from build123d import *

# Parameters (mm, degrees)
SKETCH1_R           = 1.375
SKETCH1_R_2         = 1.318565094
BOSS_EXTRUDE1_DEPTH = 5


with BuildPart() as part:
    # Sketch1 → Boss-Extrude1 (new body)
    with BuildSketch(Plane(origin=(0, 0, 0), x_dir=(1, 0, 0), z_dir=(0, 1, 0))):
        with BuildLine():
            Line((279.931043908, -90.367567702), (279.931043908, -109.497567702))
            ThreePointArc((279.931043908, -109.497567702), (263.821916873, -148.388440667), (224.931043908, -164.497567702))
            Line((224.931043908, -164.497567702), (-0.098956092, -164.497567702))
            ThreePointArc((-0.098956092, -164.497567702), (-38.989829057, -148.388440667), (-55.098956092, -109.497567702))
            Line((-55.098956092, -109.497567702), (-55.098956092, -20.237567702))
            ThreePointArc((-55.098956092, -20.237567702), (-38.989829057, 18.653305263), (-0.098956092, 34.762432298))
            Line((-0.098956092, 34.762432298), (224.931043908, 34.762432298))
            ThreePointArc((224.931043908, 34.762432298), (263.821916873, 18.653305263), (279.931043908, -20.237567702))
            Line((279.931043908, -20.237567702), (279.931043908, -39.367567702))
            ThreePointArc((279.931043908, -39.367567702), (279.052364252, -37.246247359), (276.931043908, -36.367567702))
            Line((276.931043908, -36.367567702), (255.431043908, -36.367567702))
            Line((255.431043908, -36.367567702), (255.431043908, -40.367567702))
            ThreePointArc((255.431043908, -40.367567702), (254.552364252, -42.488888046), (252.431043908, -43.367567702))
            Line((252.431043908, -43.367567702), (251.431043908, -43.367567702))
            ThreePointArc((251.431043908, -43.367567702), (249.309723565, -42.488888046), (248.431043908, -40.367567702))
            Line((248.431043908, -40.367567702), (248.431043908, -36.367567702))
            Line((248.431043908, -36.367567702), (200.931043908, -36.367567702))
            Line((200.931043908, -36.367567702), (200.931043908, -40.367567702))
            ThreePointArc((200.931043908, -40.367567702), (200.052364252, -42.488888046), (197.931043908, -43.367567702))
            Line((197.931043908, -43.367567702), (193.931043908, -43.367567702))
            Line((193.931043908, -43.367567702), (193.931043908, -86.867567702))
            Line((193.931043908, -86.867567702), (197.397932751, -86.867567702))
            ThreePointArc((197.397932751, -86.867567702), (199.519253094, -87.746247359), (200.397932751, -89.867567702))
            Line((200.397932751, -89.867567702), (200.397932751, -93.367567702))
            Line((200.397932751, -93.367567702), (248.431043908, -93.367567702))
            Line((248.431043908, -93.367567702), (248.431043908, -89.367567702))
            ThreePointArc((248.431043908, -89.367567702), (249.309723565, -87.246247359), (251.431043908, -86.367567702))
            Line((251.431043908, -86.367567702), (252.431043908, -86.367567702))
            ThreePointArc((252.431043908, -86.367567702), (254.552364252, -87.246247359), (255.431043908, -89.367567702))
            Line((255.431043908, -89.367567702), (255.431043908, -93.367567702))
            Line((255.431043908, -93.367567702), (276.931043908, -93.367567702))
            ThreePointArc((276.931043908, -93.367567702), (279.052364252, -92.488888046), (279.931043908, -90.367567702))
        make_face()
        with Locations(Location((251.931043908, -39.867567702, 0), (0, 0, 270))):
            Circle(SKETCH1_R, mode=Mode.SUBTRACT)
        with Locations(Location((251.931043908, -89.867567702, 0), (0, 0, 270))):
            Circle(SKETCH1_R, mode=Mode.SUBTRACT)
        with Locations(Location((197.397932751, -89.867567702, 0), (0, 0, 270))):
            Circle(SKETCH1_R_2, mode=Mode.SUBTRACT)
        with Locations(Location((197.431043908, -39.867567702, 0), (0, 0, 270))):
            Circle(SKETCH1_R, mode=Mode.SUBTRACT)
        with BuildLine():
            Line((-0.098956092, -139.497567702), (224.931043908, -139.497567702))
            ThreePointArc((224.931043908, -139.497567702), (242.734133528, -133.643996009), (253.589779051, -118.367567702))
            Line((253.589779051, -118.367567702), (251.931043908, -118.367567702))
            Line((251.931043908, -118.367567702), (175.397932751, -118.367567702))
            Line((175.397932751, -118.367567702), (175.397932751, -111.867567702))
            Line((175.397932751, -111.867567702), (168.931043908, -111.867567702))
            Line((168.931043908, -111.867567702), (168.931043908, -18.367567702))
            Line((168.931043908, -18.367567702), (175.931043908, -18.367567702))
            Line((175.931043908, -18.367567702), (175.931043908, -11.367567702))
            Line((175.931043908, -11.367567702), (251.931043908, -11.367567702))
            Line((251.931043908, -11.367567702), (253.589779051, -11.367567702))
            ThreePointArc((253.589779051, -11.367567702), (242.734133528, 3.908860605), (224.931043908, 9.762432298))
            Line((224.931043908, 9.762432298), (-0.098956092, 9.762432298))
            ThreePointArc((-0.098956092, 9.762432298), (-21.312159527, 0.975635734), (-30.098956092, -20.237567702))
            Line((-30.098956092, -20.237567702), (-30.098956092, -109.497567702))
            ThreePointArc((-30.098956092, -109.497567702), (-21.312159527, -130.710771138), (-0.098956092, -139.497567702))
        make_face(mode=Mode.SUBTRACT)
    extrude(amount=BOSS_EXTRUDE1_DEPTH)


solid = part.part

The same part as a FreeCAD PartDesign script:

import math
import FreeCAD as App
import Part
import Sketcher
from FreeCAD import Vector

doc = App.newDocument("Part")
body = doc.addObject("PartDesign::Body", "Body")

# Sketch on XZ plane
sketch1 = body.newObject("Sketcher::SketchObject", "Sketch")
sketch1.AttachmentSupport = (doc.getObject("XZ_Plane"), [""])
sketch1.MapMode = "FlatFace"
sketch1.addGeometry([
    Part.LineSegment(Vector(279.9, 109.5, 0), Vector(279.9, 90.4, 0)),  # 0
    Part.ArcOfCircle(Part.Circle(Vector(276.9, 90.4, 0), Vector(0, 0, 1), 3), math.radians(0), math.radians(90)),  # 1
    Part.LineSegment(Vector(276.9, 93.4, 0), Vector(255.4, 93.4, 0)),  # 2
    Part.LineSegment(Vector(255.4, 93.4, 0), Vector(255.4, 89.4, 0)),  # 3
    Part.ArcOfCircle(Part.Circle(Vector(252.4, 89.4, 0), Vector(0, 0, 1), 3), math.radians(-90), math.radians(0)),  # 4
    Part.LineSegment(Vector(252.4, 86.4, 0), Vector(251.4, 86.4, 0)),  # 5
    Part.ArcOfCircle(Part.Circle(Vector(251.4, 89.4, 0), Vector(0, 0, 1), 3), math.radians(-180), math.radians(-90)),  # 6
    Part.LineSegment(Vector(248.4, 89.4, 0), Vector(248.4, 93.4, 0)),  # 7
    Part.LineSegment(Vector(248.4, 93.4, 0), Vector(200.4, 93.4, 0)),  # 8
    Part.LineSegment(Vector(200.4, 93.4, 0), Vector(200.4, 89.9, 0)),  # 9
    Part.ArcOfCircle(Part.Circle(Vector(197.4, 89.9, 0), Vector(0, 0, 1), 3), math.radians(-90), math.radians(0)),  # 10
    Part.LineSegment(Vector(197.4, 86.9, 0), Vector(193.9, 86.9, 0)),  # 11
    Part.LineSegment(Vector(193.9, 86.9, 0), Vector(193.9, 43.4, 0)),  # 12
    Part.LineSegment(Vector(193.9, 43.4, 0), Vector(197.9, 43.4, 0)),  # 13
    Part.ArcOfCircle(Part.Circle(Vector(197.9, 40.4, 0), Vector(0, 0, 1), 3), math.radians(0), math.radians(90)),  # 14
    Part.LineSegment(Vector(200.9, 40.4, 0), Vector(200.9, 36.4, 0)),  # 15
    Part.LineSegment(Vector(200.9, 36.4, 0), Vector(248.4, 36.4, 0)),  # 16
    Part.LineSegment(Vector(248.4, 36.4, 0), Vector(248.4, 40.4, 0)),  # 17
    Part.ArcOfCircle(Part.Circle(Vector(251.4, 40.4, 0), Vector(0, 0, 1), 3), math.radians(90), math.radians(180)),  # 18
    Part.LineSegment(Vector(251.4, 43.4, 0), Vector(252.4, 43.4, 0)),  # 19
    Part.ArcOfCircle(Part.Circle(Vector(252.4, 40.4, 0), Vector(0, 0, 1), 3), math.radians(0), math.radians(90)),  # 20
    Part.LineSegment(Vector(255.4, 40.4, 0), Vector(255.4, 36.4, 0)),  # 21
    Part.LineSegment(Vector(255.4, 36.4, 0), Vector(276.9, 36.4, 0)),  # 22
    Part.ArcOfCircle(Part.Circle(Vector(276.9, 39.4, 0), Vector(0, 0, 1), 3), math.radians(-90), math.radians(0)),  # 23
    Part.LineSegment(Vector(279.9, 39.4, 0), Vector(279.9, 20.2, 0)),  # 24
    Part.ArcOfCircle(Part.Circle(Vector(224.9, 20.2, 0), Vector(0, 0, 1), 55), math.radians(-90), math.radians(0)),  # 25
    Part.LineSegment(Vector(224.9, -34.8, 0), Vector(-0.1, -34.8, 0)),  # 26
    Part.ArcOfCircle(Part.Circle(Vector(-0.1, 20.2, 0), Vector(0, 0, 1), 55), math.radians(-180), math.radians(-90)),  # 27
    Part.LineSegment(Vector(-55.1, 20.2, 0), Vector(-55.1, 109.5, 0)),  # 28
    Part.ArcOfCircle(Part.Circle(Vector(-0.1, 109.5, 0), Vector(0, 0, 1), 55), math.radians(90), math.radians(180)),  # 29
    Part.LineSegment(Vector(-0.1, 164.5, 0), Vector(224.9, 164.5, 0)),  # 30
    Part.ArcOfCircle(Part.Circle(Vector(224.9, 109.5, 0), Vector(0, 0, 1), 55), math.radians(0), math.radians(90)),  # 31
    Part.Circle(Vector(251.9, 89.9, 0), Vector(0, 0, 1), 1.4),  # 32
    Part.Circle(Vector(197.4, 89.9, 0), Vector(0, 0, 1), 1.3),  # 33
    Part.Circle(Vector(251.9, 39.9, 0), Vector(0, 0, 1), 1.4),  # 34
    Part.Circle(Vector(197.4, 39.9, 0), Vector(0, 0, 1), 1.4),  # 35
    Part.ArcOfCircle(Part.Circle(Vector(-0.1, 109.5, 0), Vector(0, 0, 1), 30), math.radians(90), math.radians(180)),  # 36
    Part.LineSegment(Vector(-30.1, 109.5, 0), Vector(-30.1, 20.2, 0)),  # 37
    Part.ArcOfCircle(Part.Circle(Vector(-0.1, 20.2, 0), Vector(0, 0, 1), 30), math.radians(180), math.radians(270)),  # 38
    Part.LineSegment(Vector(-0.1, -9.8, 0), Vector(224.9, -9.8, 0)),  # 39
    Part.ArcOfCircle(Part.Circle(Vector(224.9, 20.2, 0), Vector(0, 0, 1), 30), math.radians(-90), math.radians(-17)),  # 40
    Part.LineSegment(Vector(253.6, 11.4, 0), Vector(175.9, 11.4, 0)),  # 41
    Part.LineSegment(Vector(175.9, 11.4, 0), Vector(175.9, 18.4, 0)),  # 42
    Part.LineSegment(Vector(175.9, 18.4, 0), Vector(168.9, 18.4, 0)),  # 43
    Part.LineSegment(Vector(168.9, 18.4, 0), Vector(168.9, 111.9, 0)),  # 44
    Part.LineSegment(Vector(168.9, 111.9, 0), Vector(175.4, 111.9, 0)),  # 45
    Part.LineSegment(Vector(175.4, 111.9, 0), Vector(175.4, 118.4, 0)),  # 46
    Part.LineSegment(Vector(175.4, 118.4, 0), Vector(253.6, 118.4, 0)),  # 47
    Part.ArcOfCircle(Part.Circle(Vector(224.9, 109.5, 0), Vector(0, 0, 1), 30), math.radians(17), math.radians(90)),  # 48
    Part.LineSegment(Vector(224.9, 139.5, 0), Vector(-0.1, 139.5, 0)),  # 49
], False)
sketch1.addConstraint([
    Sketcher.Constraint("Tangent", 0, 2, 1, 1),
    Sketcher.Constraint("Tangent", 1, 2, 2, 1),
    Sketcher.Constraint("Coincident", 2, 2, 3, 1),
    Sketcher.Constraint("Tangent", 3, 2, 4, 2),
    Sketcher.Constraint("Tangent", 4, 1, 5, 1),
    Sketcher.Constraint("Tangent", 5, 2, 6, 2),
    Sketcher.Constraint("Tangent", 6, 1, 7, 1),
    Sketcher.Constraint("Coincident", 7, 2, 8, 1),
    Sketcher.Constraint("Coincident", 8, 2, 9, 1),
    Sketcher.Constraint("Tangent", 9, 2, 10, 2),
    Sketcher.Constraint("Tangent", 10, 1, 11, 1),
    Sketcher.Constraint("Coincident", 11, 2, 12, 1),
    Sketcher.Constraint("Coincident", 12, 2, 13, 1),
    Sketcher.Constraint("Tangent", 13, 2, 14, 2),
    Sketcher.Constraint("Tangent", 14, 1, 15, 1),
    Sketcher.Constraint("Coincident", 15, 2, 16, 1),
    Sketcher.Constraint("Coincident", 16, 2, 17, 1),
    Sketcher.Constraint("Tangent", 17, 2, 18, 2),
    Sketcher.Constraint("Tangent", 18, 1, 19, 1),
    Sketcher.Constraint("Tangent", 19, 2, 20, 2),
    Sketcher.Constraint("Tangent", 20, 1, 21, 1),
    Sketcher.Constraint("Coincident", 21, 2, 22, 1),
    Sketcher.Constraint("Tangent", 22, 2, 23, 1),
    Sketcher.Constraint("Tangent", 23, 2, 24, 1),
    Sketcher.Constraint("Tangent", 24, 2, 25, 2),
    Sketcher.Constraint("Tangent", 25, 1, 26, 1),
    Sketcher.Constraint("Tangent", 26, 2, 27, 2),
    Sketcher.Constraint("Tangent", 27, 1, 28, 1),
    Sketcher.Constraint("Tangent", 28, 2, 29, 2),
    Sketcher.Constraint("Tangent", 29, 1, 30, 1),
    Sketcher.Constraint("Tangent", 30, 2, 31, 2),
    Sketcher.Constraint("Tangent", 31, 1, 0, 1),
    Sketcher.Constraint("Tangent", 36, 2, 37, 1),
    Sketcher.Constraint("Tangent", 37, 2, 38, 1),
    Sketcher.Constraint("Tangent", 38, 2, 39, 1),
    Sketcher.Constraint("Tangent", 39, 2, 40, 1),
    Sketcher.Constraint("Coincident", 40, 2, 41, 1),
    Sketcher.Constraint("Coincident", 41, 2, 42, 1),
    Sketcher.Constraint("Coincident", 42, 2, 43, 1),
    Sketcher.Constraint("Coincident", 43, 2, 44, 1),
    Sketcher.Constraint("Coincident", 44, 2, 45, 1),
    Sketcher.Constraint("Coincident", 45, 2, 46, 1),
    Sketcher.Constraint("Coincident", 46, 2, 47, 1),
    Sketcher.Constraint("Coincident", 47, 2, 48, 1),
    Sketcher.Constraint("Tangent", 48, 2, 49, 1),
    Sketcher.Constraint("Tangent", 49, 2, 36, 1),
    Sketcher.Constraint("Vertical", 0),
    Sketcher.Constraint("Horizontal", 2),
    Sketcher.Constraint("Vertical", 3),
    Sketcher.Constraint("Horizontal", 5),
    Sketcher.Constraint("Vertical", 7),
    Sketcher.Constraint("Horizontal", 8),
    Sketcher.Constraint("Vertical", 9),
    Sketcher.Constraint("Horizontal", 11),
    Sketcher.Constraint("Vertical", 12),
    Sketcher.Constraint("Horizontal", 13),
    Sketcher.Constraint("Vertical", 15),
    Sketcher.Constraint("Horizontal", 16),
    Sketcher.Constraint("Vertical", 17),
    Sketcher.Constraint("Horizontal", 19),
    Sketcher.Constraint("Vertical", 21),
    Sketcher.Constraint("Horizontal", 22),
    Sketcher.Constraint("Vertical", 24),
    Sketcher.Constraint("Horizontal", 26),
    Sketcher.Constraint("Vertical", 28),
    Sketcher.Constraint("Horizontal", 30),
    Sketcher.Constraint("Vertical", 37),
    Sketcher.Constraint("Horizontal", 39),
    Sketcher.Constraint("Horizontal", 41),
    Sketcher.Constraint("Vertical", 42),
    Sketcher.Constraint("Horizontal", 43),
    Sketcher.Constraint("Vertical", 44),
    Sketcher.Constraint("Horizontal", 45),
    Sketcher.Constraint("Vertical", 46),
    Sketcher.Constraint("Horizontal", 47),
    Sketcher.Constraint("Horizontal", 49),
    Sketcher.Constraint("Coincident", 33, 3, 10, 3),
    Sketcher.Constraint("Coincident", 36, 3, 29, 3),
    Sketcher.Constraint("Coincident", 38, 3, 27, 3),
    Sketcher.Constraint("Coincident", 40, 3, 25, 3),
    Sketcher.Constraint("Coincident", 48, 3, 31, 3),
    Sketcher.Constraint("Equal", 1, 4),
    Sketcher.Constraint("Equal", 4, 6),
    Sketcher.Constraint("Equal", 6, 10),
    Sketcher.Constraint("Equal", 10, 14),
    Sketcher.Constraint("Equal", 14, 18),
    Sketcher.Constraint("Equal", 18, 20),
    Sketcher.Constraint("Equal", 20, 23),
    Sketcher.Constraint("Equal", 25, 27),
    Sketcher.Constraint("Equal", 27, 29),
    Sketcher.Constraint("Equal", 29, 31),
    Sketcher.Constraint("Equal", 32, 34),
    Sketcher.Constraint("Equal", 34, 35),
    Sketcher.Constraint("Horizontal", 14, 3, 18, 3),
    Sketcher.Constraint("Horizontal", 10, 3, 32, 3),
    Sketcher.Constraint("Horizontal", 34, 3, 35, 3),
    Sketcher.Constraint("Horizontal", 2, 2, 7, 2),
    Sketcher.Constraint("Horizontal", 16, 2, 21, 2),
    Sketcher.Constraint("Vertical", 6, 3, 18, 3),
    Sketcher.Constraint("Vertical", 4, 3, 20, 3),
    Sketcher.Constraint("Vertical", 1, 3, 23, 3),
    Sketcher.Constraint("Vertical", 32, 3, 34, 3),
    Sketcher.Constraint("Vertical", 40, 2, 47, 2),
    Sketcher.Constraint("Equal", 13, 3),
    Sketcher.Constraint("Equal", 7, 15),
    Sketcher.Constraint("Equal", 0, 24),
    Sketcher.Constraint("Equal", 43, 42),
    Sketcher.Constraint("Radius", 1, 3.0),
    Sketcher.Constraint("Radius", 25, 55.0),
    Sketcher.Constraint("Radius", 36, 30.0),
    Sketcher.Constraint("Diameter", 32, 2.75),
    Sketcher.Constraint("DistanceX", 5, 2, 5, 1, 1.0),
    Sketcher.Constraint("DistanceX", 13, 1, 13, 2, 4.0),
    Sketcher.Constraint("DistanceX", 43, 2, 43, 1, 7.0),
    Sketcher.Constraint("DistanceX", 2, 2, 2, 1, 21.5),
    Sketcher.Constraint("DistanceX", 16, 1, 16, 2, 47.5),
    Sketcher.Constraint("DistanceY", 9, 2, 9, 1, 3.5),
    Sketcher.Constraint("DistanceY", 12, 2, 12, 1, 43.5),
    Sketcher.Constraint("DistanceY", 44, 1, 44, 2, 93.5),
    Sketcher.Constraint("DistanceY", 46, 1, 46, 2, 6.5),
    Sketcher.Constraint("DistanceX", 26, 2, 26, 1, 225.03),
    Sketcher.Constraint("DistanceY", 0, 2, 0, 1, 19.13),
    Sketcher.Constraint("Diameter", 33, 2.63713),
    Sketcher.Constraint("DistanceX", 8, 2, 8, 1, 48.033111),
    Sketcher.Constraint("DistanceX", 45, 1, 45, 2, 6.466889),
    Sketcher.Constraint("DistanceX", 41, 2, 41, 1, 77.658735),
    Sketcher.Constraint("DistanceX", -1, 1, 40, 2, 253.589779),
    Sketcher.Constraint("DistanceY", -1, 1, 1, 3, 90.367568),
    Sketcher.Constraint("DistanceX", -1, 1, 32, 3, 251.931044),
    Sketcher.Constraint("DistanceY", -1, 1, 34, 3, 39.867568),
    Sketcher.Constraint("DistanceX", -1, 1, 35, 3, 197.431044),
])
pad1 = body.newObject("PartDesign::Pad", "Pad")
pad1.Profile = sketch1
pad1.Length = 5
pad1.Reversed = True

doc.recompute()
